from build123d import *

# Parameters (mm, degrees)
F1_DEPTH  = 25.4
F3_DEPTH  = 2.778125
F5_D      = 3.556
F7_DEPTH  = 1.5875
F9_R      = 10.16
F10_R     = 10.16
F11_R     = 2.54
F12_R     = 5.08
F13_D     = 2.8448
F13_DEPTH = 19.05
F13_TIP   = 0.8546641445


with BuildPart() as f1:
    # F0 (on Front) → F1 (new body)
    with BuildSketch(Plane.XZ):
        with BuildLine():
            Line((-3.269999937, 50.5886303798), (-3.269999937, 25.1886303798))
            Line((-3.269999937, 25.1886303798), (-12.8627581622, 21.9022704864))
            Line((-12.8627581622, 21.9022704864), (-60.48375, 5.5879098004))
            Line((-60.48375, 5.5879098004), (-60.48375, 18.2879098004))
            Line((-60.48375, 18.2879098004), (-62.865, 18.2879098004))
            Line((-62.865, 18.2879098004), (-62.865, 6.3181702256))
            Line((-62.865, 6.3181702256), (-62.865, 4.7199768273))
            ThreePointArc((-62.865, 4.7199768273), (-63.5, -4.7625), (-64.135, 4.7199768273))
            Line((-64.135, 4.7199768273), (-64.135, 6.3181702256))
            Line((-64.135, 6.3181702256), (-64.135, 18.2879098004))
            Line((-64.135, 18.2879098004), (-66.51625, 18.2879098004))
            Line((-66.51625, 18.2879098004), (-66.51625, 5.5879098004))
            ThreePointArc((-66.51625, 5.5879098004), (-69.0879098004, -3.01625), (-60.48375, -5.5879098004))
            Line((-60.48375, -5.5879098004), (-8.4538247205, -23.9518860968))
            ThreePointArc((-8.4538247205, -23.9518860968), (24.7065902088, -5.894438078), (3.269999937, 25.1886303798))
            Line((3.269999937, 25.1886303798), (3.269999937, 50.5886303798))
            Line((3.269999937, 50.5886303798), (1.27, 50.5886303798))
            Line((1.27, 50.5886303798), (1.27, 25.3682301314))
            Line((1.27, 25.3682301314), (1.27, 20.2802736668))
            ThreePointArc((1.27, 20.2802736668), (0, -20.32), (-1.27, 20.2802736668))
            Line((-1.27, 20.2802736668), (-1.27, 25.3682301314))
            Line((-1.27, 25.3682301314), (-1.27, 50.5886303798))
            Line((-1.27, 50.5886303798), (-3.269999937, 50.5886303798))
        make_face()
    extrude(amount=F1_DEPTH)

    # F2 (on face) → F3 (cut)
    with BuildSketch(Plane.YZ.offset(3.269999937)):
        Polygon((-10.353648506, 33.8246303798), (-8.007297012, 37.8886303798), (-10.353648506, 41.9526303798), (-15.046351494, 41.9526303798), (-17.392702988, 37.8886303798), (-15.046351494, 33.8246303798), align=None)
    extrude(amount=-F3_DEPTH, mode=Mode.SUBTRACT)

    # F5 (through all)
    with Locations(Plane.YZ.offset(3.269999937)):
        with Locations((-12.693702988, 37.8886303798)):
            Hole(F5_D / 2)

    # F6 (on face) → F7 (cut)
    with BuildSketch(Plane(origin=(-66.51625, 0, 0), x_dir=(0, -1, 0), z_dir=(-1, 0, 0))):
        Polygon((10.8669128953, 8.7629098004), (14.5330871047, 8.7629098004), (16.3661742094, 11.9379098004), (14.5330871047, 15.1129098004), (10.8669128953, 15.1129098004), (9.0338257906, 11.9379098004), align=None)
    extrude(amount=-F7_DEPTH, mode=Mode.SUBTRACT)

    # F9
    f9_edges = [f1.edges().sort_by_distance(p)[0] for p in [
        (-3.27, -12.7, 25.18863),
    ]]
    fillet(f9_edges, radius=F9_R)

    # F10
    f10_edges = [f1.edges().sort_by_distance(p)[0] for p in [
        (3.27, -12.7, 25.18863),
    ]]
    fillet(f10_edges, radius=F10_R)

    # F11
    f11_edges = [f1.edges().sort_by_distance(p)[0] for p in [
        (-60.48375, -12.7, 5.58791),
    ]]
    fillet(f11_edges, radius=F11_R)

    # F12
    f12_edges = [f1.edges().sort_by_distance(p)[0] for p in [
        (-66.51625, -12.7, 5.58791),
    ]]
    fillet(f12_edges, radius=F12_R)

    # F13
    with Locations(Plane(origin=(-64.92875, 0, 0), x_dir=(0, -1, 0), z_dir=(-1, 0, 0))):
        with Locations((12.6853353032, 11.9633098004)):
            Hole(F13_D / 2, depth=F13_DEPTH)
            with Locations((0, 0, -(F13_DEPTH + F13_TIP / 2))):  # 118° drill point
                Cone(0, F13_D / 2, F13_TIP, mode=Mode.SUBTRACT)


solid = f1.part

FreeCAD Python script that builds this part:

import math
import FreeCAD as App
import Part
import Sketcher
from FreeCAD import Vector
Q = App.Units.Quantity


def edges_at(feature, points):
    """Names of the edges that pass closest to the given points."""
    edges = feature.Shape.Edges
    near = lambda p: min(range(len(edges)), key=lambda i: edges[i].distToShape(Part.Vertex(*p))[0])
    return sorted({f"Edge{near(p) + 1}" for p in points})


def add_polygon(sketch, points):
    """Adds a closed chain of lines whose ends are joined by coincident constraints."""
    first, n = sketch.GeometryCount, len(points)
    for a, b in zip(points, points[1:] + points[:1]):
        sketch.addGeometry(Part.LineSegment(App.Vector(*a, 0), App.Vector(*b, 0)), False)
    for i in range(n):
        sketch.addConstraint(Sketcher.Constraint("Coincident", first + i, 2, first + (i + 1) % n, 1))

doc = App.newDocument("Part")
body = doc.addObject("PartDesign::Body", "Body")

# Sketch on XZ plane
sketch1 = body.newObject("Sketcher::SketchObject", "Sketch")
sketch1.AttachmentSupport = (doc.getObject("XZ_Plane"), [""])
sketch1.MapMode = "FlatFace"
sketch1.addGeometry([
    Part.LineSegment(Vector(-3.3, 50.6, 0), Vector(-3.3, 25.2, 0)),  # 0
    Part.LineSegment(Vector(-3.3, 25.2, 0), Vector(-60.5, 5.6, 0)),  # 1
    Part.LineSegment(Vector(-60.5, 5.6, 0), Vector(-60.5, 18.3, 0)),  # 2
    Part.LineSegment(Vector(-60.5, 18.3, 0), Vector(-62.9, 18.3, 0)),  # 3
    Part.LineSegment(Vector(-62.9, 18.3, 0), Vector(-62.9, 4.7, 0)),  # 4
    Part.ArcOfCircle(Part.Circle(Vector(-63.5, 0, 0), Vector(0, 0, 1), 4.8), math.radians(98), math.radians(442)),  # 5
    Part.LineSegment(Vector(-64.1, 4.7, 0), Vector(-64.1, 18.3, 0)),  # 6
    Part.LineSegment(Vector(-64.1, 18.3, 0), Vector(-66.5, 18.3, 0)),  # 7
    Part.LineSegment(Vector(-66.5, 18.3, 0), Vector(-66.5, 5.6, 0)),  # 8
    Part.ArcOfCircle(Part.Circle(Vector(-63.5, 0, 0), Vector(0, 0, 1), 6.3), math.radians(118), math.radians(298)),  # 9
    Part.LineSegment(Vector(-60.5, -5.6, 0), Vector(-8.5, -24, 0)),  # 10
    Part.ArcOfCircle(Part.Circle(Vector(0, 0, 0), Vector(0, 0, 1), 25.4), math.radians(-109), math.radians(83)),  # 11
    Part.LineSegment(Vector(3.3, 25.2, 0), Vector(3.3, 50.6, 0)),  # 12
    Part.LineSegment(Vector(3.3, 50.6, 0), Vector(1.3, 50.6, 0)),  # 13
    Part.LineSegment(Vector(1.3, 50.6, 0), Vector(1.3, 20.3, 0)),  # 14
    Part.ArcOfCircle(Part.Circle(Vector(0, 0, 0), Vector(0, 0, 1), 20.3), math.radians(94), math.radians(446)),  # 15
    Part.LineSegment(Vector(-1.3, 20.3, 0), Vector(-1.3, 50.6, 0)),  # 16
    Part.LineSegment(Vector(-1.3, 50.6, 0), Vector(-3.3, 50.6, 0)),  # 17
], False)
sketch1.addConstraint([
    Sketcher.Constraint("Coincident", 0, 2, 1, 1),
    Sketcher.Constraint("Coincident", 1, 2, 2, 1),
    Sketcher.Constraint("Coincident", 2, 2, 3, 1),
    Sketcher.Constraint("Coincident", 3, 2, 4, 1),
    Sketcher.Constraint("Coincident", 4, 2, 5, 2),
    Sketcher.Constraint("Coincident", 5, 1, 6, 1),
    Sketcher.Constraint("Coincident", 6, 2, 7, 1),
    Sketcher.Constraint("Coincident", 7, 2, 8, 1),
    Sketcher.Constraint("Coincident", 8, 2, 9, 1),
    Sketcher.Constraint("Coincident", 9, 2, 10, 1),
    Sketcher.Constraint("Tangent", 10, 2, 11, 1),
    Sketcher.Constraint("Coincident", 11, 2, 12, 1),
    Sketcher.Constraint("Coincident", 12, 2, 13, 1),
    Sketcher.Constraint("Coincident", 13, 2, 14, 1),
    Sketcher.Constraint("Coincident", 14, 2, 15, 2),
    Sketcher.Constraint("Coincident", 15, 1, 16, 1),
    Sketcher.Constraint("Coincident", 16, 2, 17, 1),
    Sketcher.Constraint("Coincident", 17, 2, 0, 1),
    Sketcher.Constraint("Vertical", 0),
    Sketcher.Constraint("Vertical", 2),
    Sketcher.Constraint("Horizontal", 3),
    Sketcher.Constraint("Vertical", 4),
    Sketcher.Constraint("Vertical", 6),
    Sketcher.Constraint("Horizontal", 7),
    Sketcher.Constraint("Vertical", 8),
    Sketcher.Constraint("Vertical", 12),
    Sketcher.Constraint("Horizontal", 13),
    Sketcher.Constraint("Vertical", 14),
    Sketcher.Constraint("Vertical", 16),
    Sketcher.Constraint("Horizontal", 17),
    Sketcher.Constraint("Coincident", 11, 3, -1, 1),
    Sketcher.Constraint("Coincident", 15, 3, -1, 1),
    Sketcher.Constraint("Coincident", 9, 3, 5, 3),
    Sketcher.Constraint("Symmetric", 0, 2, 11, 2, -2),
    Sketcher.Constraint("Symmetric", 13, 2, 16, 2, -2),
    Sketcher.Constraint("Symmetric", 1, 2, 9, 2, -1),
    Sketcher.Constraint("PointOnObject", 5, 3, -1),
    Sketcher.Constraint("Horizontal", 4, 2, 5, 1),
    Sketcher.Constraint("Horizontal", 3, 2, 6, 2),
    Sketcher.Constraint("Horizontal", 1, 2, 8, 2),
    Sketcher.Constraint("Radius", 11, Q("1 in")),
    Sketcher.Constraint("Radius", 15, Q("0.8 in")),
    Sketcher.Constraint("DistanceY", 0, 2, 0, 1, Q("1 in")),
    Sketcher.Constraint("Radius", 9, Q("0.25 in")),
    Sketcher.Constraint("DistanceY", 2, 1, 2, 2, Q("0.5 in")),
    Sketcher.Constraint("Radius", 5, Q("0.1875 in")),
    Sketcher.Constraint("DistanceX", 5, 3, -1, 1, Q("2.5 in")),
    Sketcher.Constraint("DistanceX", 15, 1, 14, 2, Q("0.1 in")),
    Sketcher.Constraint("DistanceX", 3, 2, 3, 1, Q("0.09375 in")),
    Sketcher.Constraint("DistanceX", 5, 1, 4, 2, Q("0.05 in")),
    Sketcher.Constraint("DistanceX", 13, 2, 13, 1, Q("2 mm")),
])
pad1 = body.newObject("PartDesign::Pad", "Pad")
pad1.Profile = sketch1
pad1.Length = Q("1 in")

# Sketch on YZ plane
sketch2 = body.newObject("Sketcher::SketchObject", "Sketch001")
sketch2.AttachmentSupport = (doc.getObject("YZ_Plane"), [""])
sketch2.MapMode = "FlatFace"
sketch2.AttachmentOffset = App.Placement(Vector(0, 0, 3.27), App.Rotation())
add_polygon(sketch2, [(-10.4, 33.8), (-8, 37.9), (-10.4, 42), (-15, 42), (-17.4, 37.9), (-15, 33.8)])  # lines 0-5
sketch2.addConstraint([
    Sketcher.Constraint("Horizontal", 2),
    Sketcher.Constraint("Horizontal", 5),
    Sketcher.Constraint("Parallel", 0, 3),
    Sketcher.Constraint("Parallel", 1, 4),
    Sketcher.Constraint("Horizontal", 0, 2, 3, 2),
    Sketcher.Constraint("Vertical", 2, 2, 4, 2),
    Sketcher.Constraint("Vertical", 1, 2, 5, 2),
    Sketcher.Constraint("Angle", 0, Q("60 deg")),
    Sketcher.Constraint("DistanceY", 0, 2, 1, 2, Q("0.16 in")),
    Sketcher.Constraint("DistanceX", 2, 2, 2, 1, Q("4.692703 mm")),
    Sketcher.Constraint("DistanceY", -1, 1, 0, 2, Q("37.88863 mm")),
    Sketcher.Constraint("DistanceX", 1, 2, -1, 1, Q("10.353649 mm")),
])
pocket1 = body.newObject("PartDesign::Pocket", "Pocket")
pocket1.Profile = sketch2
pocket1.Length = Q("0.109375 in")

# Sketch on YZ plane
sketch3 = body.newObject("Sketcher::SketchObject", "Sketch002")
sketch3.AttachmentSupport = (doc.getObject("YZ_Plane"), [""])
sketch3.MapMode = "FlatFace"
sketch3.AttachmentOffset = App.Placement(Vector(0, 0, 3.27), App.Rotation())
sketch3.addGeometry(Part.Circle(Vector(-12.7, 37.9, 0), Vector(0, 0, 1), 1.8), False)
sketch3.addConstraint([
    Sketcher.Constraint("Diameter", 0, Q("0.14 in")),
    Sketcher.Constraint("DistanceY", -1, 1, 0, 3, Q("37.88863 mm")),
    Sketcher.Constraint("DistanceX", 0, 3, -1, 1, Q("12.693703 mm")),
])
doc.recompute()
hole = body.newObject("PartDesign::Hole", "Hole")
hole.Profile = sketch3
hole.ThreadType = "None"
hole.Diameter = Q("0.14 in")
hole.DepthType = "ThroughAll"

# Sketch on YZ plane
sketch4 = body.newObject("Sketcher::SketchObject", "Sketch003")
sketch4.AttachmentSupport = (doc.getObject("YZ_Plane"), [""])
sketch4.MapMode = "FlatFace"
sketch4.AttachmentOffset = App.Placement(Vector(0, 0, -66.51625), App.Rotation())
add_polygon(sketch4, [(-10.9, 8.8), (-14.5, 8.8), (-16.4, 11.9), (-14.5, 15.1), (-10.9, 15.1), (-9, 11.9)])  # lines 0-5
sketch4.addConstraint([
    Sketcher.Constraint("Horizontal", 0),
    Sketcher.Constraint("Horizontal", 3),
    Sketcher.Constraint("Parallel", 1, 4),
    Sketcher.Constraint("Parallel", 2, 5),
    Sketcher.Constraint("Horizontal", 1, 2, 4, 2),
    Sketcher.Constraint("Vertical", 0, 2, 2, 2),
    Sketcher.Constraint("Vertical", 3, 2, 5, 2),
    Sketcher.Constraint("Angle", 1, Q("120 deg")),
    Sketcher.Constraint("DistanceY", 0, 2, 2, 2, Q("0.25 in")),
    Sketcher.Constraint("DistanceX", 0, 2, 0, 1, Q("3.666174 mm")),
    Sketcher.Constraint("DistanceY", -1, 1, 0, 2, Q("8.76291 mm")),
    Sketcher.Constraint("DistanceX", 0, 2, -1, 1, Q("14.533087 mm")),
])
pocket2 = body.newObject("PartDesign::Pocket", "Pocket001")
pocket2.Profile = sketch4
pocket2.Length = Q("0.0625 in")
pocket2.Reversed = True
doc.recompute()

fillet = body.newObject("PartDesign::Fillet", "Fillet")
fillet.Base = (pocket2, edges_at(pocket2, [(-3.27, -12.7, 25.189)]))
fillet.Radius = Q("0.4 in")
doc.recompute()

fillet2 = body.newObject("PartDesign::Fillet", "Fillet001")
fillet2.Base = (fillet, edges_at(fillet, [(3.27, -12.7, 25.189)]))
fillet2.Radius = Q("0.4 in")
doc.recompute()

fillet3 = body.newObject("PartDesign::Fillet", "Fillet002")
fillet3.Base = (fillet2, edges_at(fillet2, [(-60.484, -12.7, 5.588)]))
fillet3.Radius = Q("0.1 in")
doc.recompute()

fillet4 = body.newObject("PartDesign::Fillet", "Fillet003")
fillet4.Base = (fillet3, edges_at(fillet3, [(-66.516, -12.7, 5.588)]))
fillet4.Radius = Q("0.2 in")

# Sketch on YZ plane
sketch5 = body.newObject("Sketcher::SketchObject", "Sketch004")
sketch5.AttachmentSupport = (doc.getObject("YZ_Plane"), [""])
sketch5.MapMode = "FlatFace"
sketch5.AttachmentOffset = App.Placement(Vector(0, 0, -64.92875), App.Rotation())
sketch5.addGeometry(Part.Circle(Vector(-12.7, 12, 0), Vector(0, 0, 1), 1.4), False)
sketch5.addConstraint([
    Sketcher.Constraint("Diameter", 0, Q("0.112 in")),
    Sketcher.Constraint("DistanceY", -1, 1, 0, 3, Q("11.96331 mm")),
    Sketcher.Constraint("DistanceX", 0, 3, -1, 1, Q("12.685335 mm")),
])
doc.recompute()
hole2 = body.newObject("PartDesign::Hole", "Hole001")
hole2.Profile = sketch5
hole2.ThreadType = "None"
hole2.Diameter = Q("0.112 in")
hole2.DepthType = "Dimension"
hole2.Depth = Q("0.75 in")
hole2.DrillPoint = "Angled"
hole2.DrillPointAngle = 118
hole2.Reversed = True

doc.recompute()
